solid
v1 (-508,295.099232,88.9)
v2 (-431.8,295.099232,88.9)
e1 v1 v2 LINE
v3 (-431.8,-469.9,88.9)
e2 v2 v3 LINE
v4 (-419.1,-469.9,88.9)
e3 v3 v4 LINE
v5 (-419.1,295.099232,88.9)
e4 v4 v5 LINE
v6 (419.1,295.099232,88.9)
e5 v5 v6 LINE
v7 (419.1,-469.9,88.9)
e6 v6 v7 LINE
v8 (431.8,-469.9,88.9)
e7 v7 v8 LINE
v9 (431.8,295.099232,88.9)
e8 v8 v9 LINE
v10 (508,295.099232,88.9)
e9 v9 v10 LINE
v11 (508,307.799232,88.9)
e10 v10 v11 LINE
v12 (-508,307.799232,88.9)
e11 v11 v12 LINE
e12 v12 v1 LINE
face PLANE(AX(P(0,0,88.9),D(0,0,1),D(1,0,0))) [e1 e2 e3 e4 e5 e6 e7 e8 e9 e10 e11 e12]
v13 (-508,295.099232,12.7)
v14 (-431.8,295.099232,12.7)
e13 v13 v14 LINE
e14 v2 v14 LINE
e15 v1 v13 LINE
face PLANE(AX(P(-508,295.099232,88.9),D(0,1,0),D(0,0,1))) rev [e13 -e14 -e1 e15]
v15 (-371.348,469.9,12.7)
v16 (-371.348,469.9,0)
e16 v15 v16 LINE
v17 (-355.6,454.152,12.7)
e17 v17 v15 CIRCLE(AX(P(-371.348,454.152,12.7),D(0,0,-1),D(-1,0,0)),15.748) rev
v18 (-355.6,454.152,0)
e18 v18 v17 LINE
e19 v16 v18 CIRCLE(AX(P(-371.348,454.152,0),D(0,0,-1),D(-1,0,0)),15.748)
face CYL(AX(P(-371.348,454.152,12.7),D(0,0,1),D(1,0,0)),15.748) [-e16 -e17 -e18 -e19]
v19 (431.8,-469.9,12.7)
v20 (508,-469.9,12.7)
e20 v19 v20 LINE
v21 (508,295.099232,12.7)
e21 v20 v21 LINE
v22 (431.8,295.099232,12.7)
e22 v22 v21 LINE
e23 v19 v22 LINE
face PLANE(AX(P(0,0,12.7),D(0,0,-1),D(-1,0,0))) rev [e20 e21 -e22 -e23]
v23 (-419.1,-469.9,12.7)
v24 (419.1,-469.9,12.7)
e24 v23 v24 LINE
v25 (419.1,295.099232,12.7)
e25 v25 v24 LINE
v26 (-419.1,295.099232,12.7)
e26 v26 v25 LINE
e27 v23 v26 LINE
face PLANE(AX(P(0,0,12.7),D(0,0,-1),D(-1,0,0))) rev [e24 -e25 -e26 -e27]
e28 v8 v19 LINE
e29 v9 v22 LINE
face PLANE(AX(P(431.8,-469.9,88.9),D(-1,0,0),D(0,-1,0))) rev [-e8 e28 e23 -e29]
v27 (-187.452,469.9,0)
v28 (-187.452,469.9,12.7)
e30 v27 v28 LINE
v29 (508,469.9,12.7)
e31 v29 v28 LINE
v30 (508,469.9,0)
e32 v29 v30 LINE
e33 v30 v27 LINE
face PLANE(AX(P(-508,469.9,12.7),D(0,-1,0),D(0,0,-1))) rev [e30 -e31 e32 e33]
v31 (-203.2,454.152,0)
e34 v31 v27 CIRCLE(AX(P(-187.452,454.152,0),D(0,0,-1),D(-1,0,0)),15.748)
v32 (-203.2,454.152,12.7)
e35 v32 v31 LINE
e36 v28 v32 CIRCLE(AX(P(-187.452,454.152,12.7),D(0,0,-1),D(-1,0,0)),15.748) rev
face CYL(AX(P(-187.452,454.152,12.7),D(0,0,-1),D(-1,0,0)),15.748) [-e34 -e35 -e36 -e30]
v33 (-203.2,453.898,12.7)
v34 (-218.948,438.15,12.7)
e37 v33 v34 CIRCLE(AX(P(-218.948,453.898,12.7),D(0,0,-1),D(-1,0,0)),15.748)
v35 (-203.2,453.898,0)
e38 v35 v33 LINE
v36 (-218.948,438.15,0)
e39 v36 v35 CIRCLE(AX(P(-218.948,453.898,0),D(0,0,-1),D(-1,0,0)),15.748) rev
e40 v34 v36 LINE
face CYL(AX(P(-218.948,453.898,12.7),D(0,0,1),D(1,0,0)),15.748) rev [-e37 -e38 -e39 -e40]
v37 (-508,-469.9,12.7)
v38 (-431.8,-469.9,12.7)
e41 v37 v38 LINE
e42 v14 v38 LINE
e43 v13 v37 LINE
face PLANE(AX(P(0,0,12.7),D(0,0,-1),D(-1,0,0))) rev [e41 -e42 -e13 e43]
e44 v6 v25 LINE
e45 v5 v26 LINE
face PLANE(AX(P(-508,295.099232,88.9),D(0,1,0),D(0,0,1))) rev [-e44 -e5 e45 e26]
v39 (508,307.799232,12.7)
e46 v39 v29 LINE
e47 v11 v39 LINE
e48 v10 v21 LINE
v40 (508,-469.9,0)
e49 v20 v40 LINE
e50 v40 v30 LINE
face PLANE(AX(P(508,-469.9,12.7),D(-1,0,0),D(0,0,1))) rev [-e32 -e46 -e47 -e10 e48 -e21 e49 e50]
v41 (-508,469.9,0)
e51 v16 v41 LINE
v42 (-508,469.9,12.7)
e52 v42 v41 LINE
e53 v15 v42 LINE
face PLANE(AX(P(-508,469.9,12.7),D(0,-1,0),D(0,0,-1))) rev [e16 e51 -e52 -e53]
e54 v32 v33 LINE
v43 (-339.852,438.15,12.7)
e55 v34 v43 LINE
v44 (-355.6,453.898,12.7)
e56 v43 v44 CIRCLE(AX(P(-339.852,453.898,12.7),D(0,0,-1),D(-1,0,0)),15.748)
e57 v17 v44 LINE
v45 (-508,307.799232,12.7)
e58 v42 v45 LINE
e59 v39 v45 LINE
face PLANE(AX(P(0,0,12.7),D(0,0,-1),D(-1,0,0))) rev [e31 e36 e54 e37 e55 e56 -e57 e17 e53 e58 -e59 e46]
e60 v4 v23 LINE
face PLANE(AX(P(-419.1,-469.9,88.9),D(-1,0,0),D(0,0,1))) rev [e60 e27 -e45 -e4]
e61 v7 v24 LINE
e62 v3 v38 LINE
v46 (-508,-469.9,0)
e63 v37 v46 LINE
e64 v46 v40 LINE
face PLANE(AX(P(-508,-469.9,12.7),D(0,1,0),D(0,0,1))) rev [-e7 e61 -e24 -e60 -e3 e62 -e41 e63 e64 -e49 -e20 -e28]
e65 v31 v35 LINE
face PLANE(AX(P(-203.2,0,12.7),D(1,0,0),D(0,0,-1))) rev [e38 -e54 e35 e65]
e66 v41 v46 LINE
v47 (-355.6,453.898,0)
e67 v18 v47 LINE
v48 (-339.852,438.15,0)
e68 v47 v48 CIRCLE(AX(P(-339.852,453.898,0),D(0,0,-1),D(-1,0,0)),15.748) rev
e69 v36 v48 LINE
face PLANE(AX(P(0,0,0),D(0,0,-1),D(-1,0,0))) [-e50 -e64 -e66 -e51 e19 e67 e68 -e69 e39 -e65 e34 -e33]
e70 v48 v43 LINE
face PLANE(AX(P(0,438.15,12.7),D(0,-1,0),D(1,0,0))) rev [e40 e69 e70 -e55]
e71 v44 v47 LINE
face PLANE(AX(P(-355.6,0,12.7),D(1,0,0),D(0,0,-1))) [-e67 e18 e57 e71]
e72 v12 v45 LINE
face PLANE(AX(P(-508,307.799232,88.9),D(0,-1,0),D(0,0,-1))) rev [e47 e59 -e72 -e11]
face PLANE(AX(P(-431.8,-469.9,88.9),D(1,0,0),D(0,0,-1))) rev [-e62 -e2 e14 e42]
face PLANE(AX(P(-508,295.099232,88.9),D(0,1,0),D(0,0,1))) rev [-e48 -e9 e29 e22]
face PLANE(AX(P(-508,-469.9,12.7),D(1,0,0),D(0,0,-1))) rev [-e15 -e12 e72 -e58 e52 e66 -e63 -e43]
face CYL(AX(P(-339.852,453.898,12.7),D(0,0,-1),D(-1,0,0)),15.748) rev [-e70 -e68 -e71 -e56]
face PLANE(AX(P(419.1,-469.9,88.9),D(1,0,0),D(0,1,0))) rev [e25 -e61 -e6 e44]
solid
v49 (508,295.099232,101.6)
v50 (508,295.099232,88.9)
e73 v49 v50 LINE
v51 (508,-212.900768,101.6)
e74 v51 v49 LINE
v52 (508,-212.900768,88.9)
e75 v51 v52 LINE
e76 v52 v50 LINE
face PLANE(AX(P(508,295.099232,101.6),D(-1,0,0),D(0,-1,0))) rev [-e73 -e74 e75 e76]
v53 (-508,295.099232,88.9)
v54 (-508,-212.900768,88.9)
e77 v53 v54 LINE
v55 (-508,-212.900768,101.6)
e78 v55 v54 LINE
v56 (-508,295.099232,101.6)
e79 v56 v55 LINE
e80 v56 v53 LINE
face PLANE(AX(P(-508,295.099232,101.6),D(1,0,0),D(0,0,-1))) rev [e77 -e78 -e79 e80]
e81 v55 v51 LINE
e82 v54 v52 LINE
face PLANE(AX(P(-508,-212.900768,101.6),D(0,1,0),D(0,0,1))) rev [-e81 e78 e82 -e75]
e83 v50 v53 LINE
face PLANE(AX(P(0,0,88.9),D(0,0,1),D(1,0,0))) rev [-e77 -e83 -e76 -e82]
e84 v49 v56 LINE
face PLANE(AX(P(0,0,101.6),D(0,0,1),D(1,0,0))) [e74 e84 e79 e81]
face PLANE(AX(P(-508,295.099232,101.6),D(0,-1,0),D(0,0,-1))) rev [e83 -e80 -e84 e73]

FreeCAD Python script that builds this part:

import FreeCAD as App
import Part
import Sketcher
from FreeCAD import Vector
Q = App.Units.Quantity


def edges_at(feature, points):
    """Names of the edges that pass closest to the given points."""
    edges = feature.Shape.Edges
    near = lambda p: min(range(len(edges)), key=lambda i: edges[i].distToShape(Part.Vertex(*p))[0])
    return sorted({f"Edge{near(p) + 1}" for p in points})


def add_polygon(sketch, points):
    """Adds a closed chain of lines whose ends are joined by coincident constraints."""
    first, n = sketch.GeometryCount, len(points)
    for a, b in zip(points, points[1:] + points[:1]):
        sketch.addGeometry(Part.LineSegment(App.Vector(*a, 0), App.Vector(*b, 0)), False)
    for i in range(n):
        sketch.addConstraint(Sketcher.Constraint("Coincident", first + i, 2, first + (i + 1) % n, 1))

doc = App.newDocument("Part")
body = doc.addObject("PartDesign::Body", "Body")

# Sketch on XY plane
sketch1 = doc.addObject("Sketcher::SketchObject", "Sketch")
body.addObject(sketch1)
sketch1.AttachmentSupport = (doc.XY_Plane, [""])
sketch1.MapMode = "FlatFace"
add_polygon(sketch1, [(-508, 470), (-508, -470), (508, -470), (508, 470)])  # lines 0-3
sketch1.addConstraint(Sketcher.Constraint("Vertical", 0))
sketch1.addConstraint(Sketcher.Constraint("Horizontal", 1))
sketch1.addConstraint(Sketcher.Constraint("Vertical", 2))
sketch1.addConstraint(Sketcher.Constraint("Horizontal", 3))
sketch1.addConstraint(Sketcher.Constraint("Symmetric", 0, 2, 2, 2, -1, 1))
sketch1.addConstraint(Sketcher.Constraint("DistanceX", 1, 1, 1, 2, Q("40 in")))
sketch1.addConstraint(Sketcher.Constraint("DistanceY", 0, 2, 0, 1, Q("37 in")))
pad1 = doc.addObject("PartDesign::Pad", "Pad")
body.addObject(pad1)
pad1.Profile = sketch1
pad1.Length = Q("0.5 in")

# Sketch on XY plane
sketch2 = doc.addObject("Sketcher::SketchObject", "Sketch001")
body.addObject(sketch2)
sketch2.AttachmentSupport = (doc.XY_Plane, [""])
sketch2.MapMode = "FlatFace"
add_polygon(sketch2, [(-203, 470), (-203, 438), (-356, 438), (-356, 470)])  # lines 0-3
sketch2.addConstraint(Sketcher.Constraint("Vertical", 0))
sketch2.addConstraint(Sketcher.Constraint("Horizontal", 1))
sketch2.addConstraint(Sketcher.Constraint("Vertical", 2))
sketch2.addConstraint(Sketcher.Constraint("Horizontal", 3))
sketch2.addConstraint(Sketcher.Constraint("DistanceX", 1, 2, 1, 1, Q("6 in")))
sketch2.addConstraint(Sketcher.Constraint("DistanceX", 0, 2, -1, 1, Q("8 in")))
sketch2.addConstraint(Sketcher.Constraint("DistanceY", 0, 2, 0, 1, Q("1.25 in")))
sketch2.addConstraint(Sketcher.Constraint("DistanceY", -1, 1, 2, 2, Q("18.5 in")))
pocket1 = doc.addObject("PartDesign::Pocket", "Pocket")
body.addObject(pocket1)
pocket1.Profile = sketch2
pocket1.Type = "ThroughAll"
pocket1.Reversed = True
doc.recompute()

fillet = doc.addObject("PartDesign::Fillet", "Fillet")
body.addObject(fillet)
fillet.Base = (pocket1, edges_at(pocket1, [
    (-355.6, 469.9, 6.35),
    (-355.6, 438.15, 6.35),
    (-203.2, 438.15, 6.35),
    (-203.2, 469.9, 6.35),
]))
fillet.Radius = Q("0.62 in")

# Sketch on XY plane
sketch3 = doc.addObject("Sketcher::SketchObject", "Sketch002")
body.addObject(sketch3)
sketch3.AttachmentSupport = (doc.XY_Plane, [""])
sketch3.MapMode = "FlatFace"
sketch3.AttachmentOffset = App.Placement(Vector(0, 0, 0.5 * 25.4), App.Rotation())
add_polygon(sketch3, [(-508, 308), (-508, 295), (508, 295), (508, 308)])  # lines 0-3
sketch3.addConstraint(Sketcher.Constraint("Vertical", 0))
sketch3.addConstraint(Sketcher.Constraint("Horizontal", 1))
sketch3.addConstraint(Sketcher.Constraint("Vertical", 2))
sketch3.addConstraint(Sketcher.Constraint("Horizontal", 3))
sketch3.addConstraint(Sketcher.Constraint("DistanceX", 1, 1, 1, 2, Q("40 in")))
sketch3.addConstraint(Sketcher.Constraint("DistanceY", 0, 2, 0, 1, Q("0.5 in")))
sketch3.addConstraint(Sketcher.Constraint("DistanceX", 0, 2, -1, 1, Q("20 in")))
sketch3.addConstraint(Sketcher.Constraint("DistanceY", -1, 1, 0, 2, 295.099232))
pad2 = doc.addObject("PartDesign::Pad", "Pad001")
body.addObject(pad2)
pad2.Profile = sketch3
pad2.Length = Q("3 in")

# Sketch on XY plane
sketch4 = doc.addObject("Sketcher::SketchObject", "Sketch003")
body.addObject(sketch4)
sketch4.AttachmentSupport = (doc.XY_Plane, [""])
sketch4.MapMode = "FlatFace"
sketch4.AttachmentOffset = App.Placement(Vector(0, 0, 0.5 * 25.4), App.Rotation())
add_polygon(sketch4, [(-432, 295), (-432, -470), (-419, -470), (-419, 295)])  # lines 0-3
add_polygon(sketch4, [(419, 295), (419, -470), (432, -470), (432, 295)])  # lines 4-7
sketch4.addConstraint(Sketcher.Constraint("Vertical", 0))
sketch4.addConstraint(Sketcher.Constraint("Horizontal", 1))
sketch4.addConstraint(Sketcher.Constraint("Vertical", 2))
sketch4.addConstraint(Sketcher.Constraint("Horizontal", 3))
sketch4.addConstraint(Sketcher.Constraint("Vertical", 4))
sketch4.addConstraint(Sketcher.Constraint("Horizontal", 5))
sketch4.addConstraint(Sketcher.Constraint("Vertical", 6))
sketch4.addConstraint(Sketcher.Constraint("Horizontal", 7))
sketch4.addConstraint(Sketcher.Constraint("Symmetric", 1, 2, 4, 2, -2))
sketch4.addConstraint(Sketcher.Constraint("Symmetric", 3, 2, 6, 2, -2))
sketch4.addConstraint(Sketcher.Constraint("DistanceX", 1, 1, 1, 2, Q("0.5 in")))
sketch4.addConstraint(Sketcher.Constraint("DistanceX", 0, 2, -1, 1, Q("17 in")))
sketch4.addConstraint(Sketcher.Constraint("DistanceY", 0, 2, -1, 1, Q("18.5 in")))
sketch4.addConstraint(Sketcher.Constraint("DistanceY", 0, 2, 0, 1, 764.999232))
pad3 = doc.addObject("PartDesign::Pad", "Pad002")
body.addObject(pad3)
pad3.Profile = sketch4
pad3.Length = Q("3 in")
body2 = doc.addObject("PartDesign::Body", "Body001")

# Sketch on XY plane
sketch5 = doc.addObject("Sketcher::SketchObject", "Sketch004")
body2.addObject(sketch5)
sketch5.AttachmentSupport = (doc.getObject("XY_Plane001"), [""])
sketch5.MapMode = "FlatFace"
sketch5.AttachmentOffset = App.Placement(Vector(0, 0, 3.5 * 25.4), App.Rotation())
add_polygon(sketch5, [(-508, 295), (-508, -213), (508, -213), (508, 295)])  # lines 0-3
sketch5.addConstraint(Sketcher.Constraint("Vertical", 0))
sketch5.addConstraint(Sketcher.Constraint("Horizontal", 1))
sketch5.addConstraint(Sketcher.Constraint("Vertical", 2))
sketch5.addConstraint(Sketcher.Constraint("Horizontal", 3))
sketch5.addConstraint(Sketcher.Constraint("DistanceX", 1, 1, 1, 2, Q("40 in")))
sketch5.addConstraint(Sketcher.Constraint("DistanceY", 0, 2, 0, 1, Q("20 in")))
sketch5.addConstraint(Sketcher.Constraint("DistanceX", 0, 2, -1, 1, Q("20 in")))
sketch5.addConstraint(Sketcher.Constraint("DistanceY", 0, 2, -1, 1, 212.900768))
pad4 = doc.addObject("PartDesign::Pad", "Pad003")
body2.addObject(pad4)
pad4.Profile = sketch5
pad4.Length = Q("0.5 in")

doc.recompute()
